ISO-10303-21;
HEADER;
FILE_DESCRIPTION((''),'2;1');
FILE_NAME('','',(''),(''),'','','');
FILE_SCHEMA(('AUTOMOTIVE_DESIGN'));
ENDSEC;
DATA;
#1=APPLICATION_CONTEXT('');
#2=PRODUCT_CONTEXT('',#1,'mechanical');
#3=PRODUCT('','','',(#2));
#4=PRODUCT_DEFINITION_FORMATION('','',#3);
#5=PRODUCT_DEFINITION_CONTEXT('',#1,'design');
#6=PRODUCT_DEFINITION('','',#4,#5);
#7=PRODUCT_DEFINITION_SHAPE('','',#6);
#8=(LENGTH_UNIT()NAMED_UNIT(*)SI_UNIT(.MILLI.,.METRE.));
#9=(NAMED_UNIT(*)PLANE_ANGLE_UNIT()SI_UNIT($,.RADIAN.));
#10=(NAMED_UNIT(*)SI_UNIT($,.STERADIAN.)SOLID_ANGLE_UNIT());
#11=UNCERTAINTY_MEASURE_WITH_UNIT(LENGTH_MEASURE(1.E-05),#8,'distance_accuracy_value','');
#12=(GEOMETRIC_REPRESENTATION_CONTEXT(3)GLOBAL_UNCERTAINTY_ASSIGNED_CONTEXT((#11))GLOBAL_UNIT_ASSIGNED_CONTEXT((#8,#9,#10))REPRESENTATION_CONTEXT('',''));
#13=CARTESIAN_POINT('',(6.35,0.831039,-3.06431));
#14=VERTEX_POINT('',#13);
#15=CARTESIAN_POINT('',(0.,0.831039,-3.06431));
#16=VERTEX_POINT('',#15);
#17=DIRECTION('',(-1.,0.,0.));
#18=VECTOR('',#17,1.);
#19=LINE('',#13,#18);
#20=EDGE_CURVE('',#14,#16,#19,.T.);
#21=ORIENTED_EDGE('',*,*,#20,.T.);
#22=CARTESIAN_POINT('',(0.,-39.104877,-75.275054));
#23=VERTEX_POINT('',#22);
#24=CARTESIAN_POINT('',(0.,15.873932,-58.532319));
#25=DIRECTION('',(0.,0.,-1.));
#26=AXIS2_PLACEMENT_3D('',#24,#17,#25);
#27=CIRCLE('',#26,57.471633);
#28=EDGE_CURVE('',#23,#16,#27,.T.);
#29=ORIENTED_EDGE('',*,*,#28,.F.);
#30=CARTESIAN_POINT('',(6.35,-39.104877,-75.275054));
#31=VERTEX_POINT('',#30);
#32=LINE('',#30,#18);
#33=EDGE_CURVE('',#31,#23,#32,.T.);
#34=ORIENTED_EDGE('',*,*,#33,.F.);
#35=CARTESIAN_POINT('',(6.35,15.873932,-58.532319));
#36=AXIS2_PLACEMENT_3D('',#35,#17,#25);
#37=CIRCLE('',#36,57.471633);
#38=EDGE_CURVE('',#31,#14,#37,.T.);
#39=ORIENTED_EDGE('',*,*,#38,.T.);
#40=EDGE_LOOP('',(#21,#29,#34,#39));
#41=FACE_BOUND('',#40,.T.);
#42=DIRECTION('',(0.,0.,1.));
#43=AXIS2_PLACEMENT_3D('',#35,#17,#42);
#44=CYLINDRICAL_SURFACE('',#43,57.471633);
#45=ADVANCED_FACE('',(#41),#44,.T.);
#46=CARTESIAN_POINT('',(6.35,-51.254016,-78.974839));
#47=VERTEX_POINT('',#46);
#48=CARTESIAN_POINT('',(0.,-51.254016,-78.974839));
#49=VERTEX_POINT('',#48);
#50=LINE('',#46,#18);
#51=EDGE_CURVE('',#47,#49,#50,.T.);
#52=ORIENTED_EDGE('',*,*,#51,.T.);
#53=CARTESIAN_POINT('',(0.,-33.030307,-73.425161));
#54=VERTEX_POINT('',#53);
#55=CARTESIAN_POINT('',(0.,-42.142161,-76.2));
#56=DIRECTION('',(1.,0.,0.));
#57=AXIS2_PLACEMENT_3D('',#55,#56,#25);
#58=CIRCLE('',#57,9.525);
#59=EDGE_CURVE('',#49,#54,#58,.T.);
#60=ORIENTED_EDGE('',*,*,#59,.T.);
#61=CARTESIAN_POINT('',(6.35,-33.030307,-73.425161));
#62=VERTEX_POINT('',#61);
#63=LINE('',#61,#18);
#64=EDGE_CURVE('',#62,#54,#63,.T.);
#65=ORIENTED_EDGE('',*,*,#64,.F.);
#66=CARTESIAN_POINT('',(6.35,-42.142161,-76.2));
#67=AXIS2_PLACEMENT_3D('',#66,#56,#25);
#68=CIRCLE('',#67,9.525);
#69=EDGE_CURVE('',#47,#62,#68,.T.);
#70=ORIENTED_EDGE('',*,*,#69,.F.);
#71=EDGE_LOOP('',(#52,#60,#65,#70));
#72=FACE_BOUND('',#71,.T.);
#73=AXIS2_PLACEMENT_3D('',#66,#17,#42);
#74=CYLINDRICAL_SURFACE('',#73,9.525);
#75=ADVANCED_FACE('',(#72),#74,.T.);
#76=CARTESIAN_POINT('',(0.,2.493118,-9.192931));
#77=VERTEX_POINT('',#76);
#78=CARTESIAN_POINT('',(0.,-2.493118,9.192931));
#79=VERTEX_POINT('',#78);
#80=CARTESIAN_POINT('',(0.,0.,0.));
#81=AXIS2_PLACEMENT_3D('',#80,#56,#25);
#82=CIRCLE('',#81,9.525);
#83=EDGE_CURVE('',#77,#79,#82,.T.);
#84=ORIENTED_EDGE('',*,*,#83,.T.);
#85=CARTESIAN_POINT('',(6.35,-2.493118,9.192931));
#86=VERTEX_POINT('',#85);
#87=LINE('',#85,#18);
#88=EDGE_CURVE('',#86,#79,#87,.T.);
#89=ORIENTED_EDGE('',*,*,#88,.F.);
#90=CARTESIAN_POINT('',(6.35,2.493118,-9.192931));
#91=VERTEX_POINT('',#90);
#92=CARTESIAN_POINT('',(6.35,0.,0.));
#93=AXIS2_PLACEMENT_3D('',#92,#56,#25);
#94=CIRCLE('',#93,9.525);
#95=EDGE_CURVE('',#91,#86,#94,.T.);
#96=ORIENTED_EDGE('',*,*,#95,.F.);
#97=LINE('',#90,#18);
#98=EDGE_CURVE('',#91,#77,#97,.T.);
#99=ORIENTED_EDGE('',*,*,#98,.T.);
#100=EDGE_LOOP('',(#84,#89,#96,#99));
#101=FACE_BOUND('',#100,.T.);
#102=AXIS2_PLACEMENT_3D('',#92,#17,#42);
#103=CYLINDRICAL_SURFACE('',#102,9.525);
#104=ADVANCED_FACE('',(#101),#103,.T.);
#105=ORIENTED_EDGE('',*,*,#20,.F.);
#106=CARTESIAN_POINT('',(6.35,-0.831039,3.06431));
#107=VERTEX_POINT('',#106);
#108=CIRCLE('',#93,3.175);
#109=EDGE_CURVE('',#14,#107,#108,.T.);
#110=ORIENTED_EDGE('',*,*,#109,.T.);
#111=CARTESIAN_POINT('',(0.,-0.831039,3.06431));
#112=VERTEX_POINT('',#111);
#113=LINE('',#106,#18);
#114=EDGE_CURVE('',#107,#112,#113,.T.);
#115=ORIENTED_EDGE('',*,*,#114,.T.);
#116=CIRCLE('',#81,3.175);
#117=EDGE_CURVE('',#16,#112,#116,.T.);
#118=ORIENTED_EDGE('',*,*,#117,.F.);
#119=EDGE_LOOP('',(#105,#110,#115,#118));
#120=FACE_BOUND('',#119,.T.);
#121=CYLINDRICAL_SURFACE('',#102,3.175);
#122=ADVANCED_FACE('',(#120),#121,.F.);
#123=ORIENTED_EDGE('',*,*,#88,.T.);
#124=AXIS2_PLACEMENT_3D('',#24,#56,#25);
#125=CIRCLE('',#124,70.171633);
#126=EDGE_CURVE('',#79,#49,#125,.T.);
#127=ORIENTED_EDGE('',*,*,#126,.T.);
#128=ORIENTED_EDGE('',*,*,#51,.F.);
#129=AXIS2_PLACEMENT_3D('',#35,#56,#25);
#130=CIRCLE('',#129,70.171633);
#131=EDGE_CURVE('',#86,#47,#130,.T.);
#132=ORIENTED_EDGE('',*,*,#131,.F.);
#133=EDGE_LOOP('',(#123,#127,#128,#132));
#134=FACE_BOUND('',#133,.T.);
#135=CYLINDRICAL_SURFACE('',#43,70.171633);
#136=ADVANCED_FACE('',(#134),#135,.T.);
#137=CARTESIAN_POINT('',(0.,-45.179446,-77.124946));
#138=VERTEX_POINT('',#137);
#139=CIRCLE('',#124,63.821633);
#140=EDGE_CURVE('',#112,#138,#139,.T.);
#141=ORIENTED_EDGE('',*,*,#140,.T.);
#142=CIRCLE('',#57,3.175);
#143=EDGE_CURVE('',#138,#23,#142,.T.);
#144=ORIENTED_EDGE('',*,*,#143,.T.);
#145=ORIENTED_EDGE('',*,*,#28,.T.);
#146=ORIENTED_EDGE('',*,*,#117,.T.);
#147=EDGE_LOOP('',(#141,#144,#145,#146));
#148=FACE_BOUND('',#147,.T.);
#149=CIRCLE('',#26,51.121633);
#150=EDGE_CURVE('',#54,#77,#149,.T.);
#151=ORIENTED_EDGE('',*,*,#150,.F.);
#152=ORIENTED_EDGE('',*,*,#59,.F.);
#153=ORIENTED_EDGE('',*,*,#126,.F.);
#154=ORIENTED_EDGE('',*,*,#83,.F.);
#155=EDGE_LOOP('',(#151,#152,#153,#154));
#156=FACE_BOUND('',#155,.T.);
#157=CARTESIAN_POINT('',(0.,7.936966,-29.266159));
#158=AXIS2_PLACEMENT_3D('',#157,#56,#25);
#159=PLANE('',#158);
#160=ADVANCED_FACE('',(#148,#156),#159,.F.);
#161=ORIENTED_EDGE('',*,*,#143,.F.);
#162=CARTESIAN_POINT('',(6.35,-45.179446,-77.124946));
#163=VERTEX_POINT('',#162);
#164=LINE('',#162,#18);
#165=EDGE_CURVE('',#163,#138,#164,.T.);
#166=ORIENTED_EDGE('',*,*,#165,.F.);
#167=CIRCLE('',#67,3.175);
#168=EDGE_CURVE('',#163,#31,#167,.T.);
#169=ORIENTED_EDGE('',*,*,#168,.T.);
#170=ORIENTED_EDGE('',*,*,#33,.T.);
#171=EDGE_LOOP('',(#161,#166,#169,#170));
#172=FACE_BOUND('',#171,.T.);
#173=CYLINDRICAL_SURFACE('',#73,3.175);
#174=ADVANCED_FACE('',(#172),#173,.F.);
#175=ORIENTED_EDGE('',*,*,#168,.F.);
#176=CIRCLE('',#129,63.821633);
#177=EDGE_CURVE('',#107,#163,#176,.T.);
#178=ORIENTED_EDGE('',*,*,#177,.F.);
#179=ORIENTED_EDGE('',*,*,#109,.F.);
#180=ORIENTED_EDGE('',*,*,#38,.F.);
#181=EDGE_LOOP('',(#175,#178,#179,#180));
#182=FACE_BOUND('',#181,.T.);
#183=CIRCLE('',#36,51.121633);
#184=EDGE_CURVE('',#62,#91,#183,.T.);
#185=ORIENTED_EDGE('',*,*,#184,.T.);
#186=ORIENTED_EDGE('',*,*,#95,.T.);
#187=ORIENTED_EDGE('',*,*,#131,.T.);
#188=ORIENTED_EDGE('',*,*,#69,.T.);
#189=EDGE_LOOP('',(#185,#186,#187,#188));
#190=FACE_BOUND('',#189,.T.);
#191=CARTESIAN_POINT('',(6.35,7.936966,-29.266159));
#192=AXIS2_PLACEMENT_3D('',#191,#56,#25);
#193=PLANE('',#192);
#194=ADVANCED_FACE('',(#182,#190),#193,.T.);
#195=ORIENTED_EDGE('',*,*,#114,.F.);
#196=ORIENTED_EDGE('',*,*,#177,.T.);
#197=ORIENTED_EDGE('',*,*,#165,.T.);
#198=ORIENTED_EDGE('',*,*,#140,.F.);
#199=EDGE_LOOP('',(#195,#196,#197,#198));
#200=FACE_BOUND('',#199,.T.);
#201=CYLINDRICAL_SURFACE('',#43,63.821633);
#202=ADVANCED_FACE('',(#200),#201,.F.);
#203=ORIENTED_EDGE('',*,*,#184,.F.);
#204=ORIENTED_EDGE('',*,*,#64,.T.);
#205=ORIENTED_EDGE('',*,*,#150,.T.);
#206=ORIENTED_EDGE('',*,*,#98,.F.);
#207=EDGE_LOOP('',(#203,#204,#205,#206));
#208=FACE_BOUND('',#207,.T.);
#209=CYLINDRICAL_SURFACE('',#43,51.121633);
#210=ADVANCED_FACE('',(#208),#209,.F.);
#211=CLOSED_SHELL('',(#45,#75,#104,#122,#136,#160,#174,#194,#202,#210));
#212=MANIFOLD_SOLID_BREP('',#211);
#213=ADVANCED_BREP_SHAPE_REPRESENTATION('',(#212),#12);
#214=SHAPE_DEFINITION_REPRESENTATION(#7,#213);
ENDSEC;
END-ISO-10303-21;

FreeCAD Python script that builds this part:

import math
import FreeCAD as App
import Part
import Sketcher
from FreeCAD import Vector
Q = App.Units.Quantity

doc = App.newDocument("Part")
body = doc.addObject("PartDesign::Body", "Body")

# Sketch on YZ plane
sketch1 = doc.addObject("Sketcher::SketchObject", "Sketch")
body.addObject(sketch1)
sketch1.AttachmentSupport = (doc.YZ_Plane, [""])
sketch1.MapMode = "FlatFace"
sketch1.addGeometry(Part.ArcOfCircle(Part.Circle(Vector(15.9, -58.5, 0), Vector(0, 0, 1), 70.2), math.radians(105), math.radians(197)), False)
sketch1.addGeometry(Part.ArcOfCircle(Part.Circle(Vector(-42.1, -76.2, 0), Vector(0, 0, 1), 9.5), math.radians(-163), math.radians(17)), False)
sketch1.addGeometry(Part.ArcOfCircle(Part.Circle(Vector(15.9, -58.5, 0), Vector(0, 0, 1), 51.1), math.radians(105), math.radians(197)), False)
sketch1.addGeometry(Part.ArcOfCircle(Part.Circle(Vector(0, 0, 0), Vector(0, 0, 1), 9.5), math.radians(-75), math.radians(105)), False)
sketch1.addGeometry(Part.ArcOfCircle(Part.Circle(Vector(15.9, -58.5, 0), Vector(0, 0, 1), 63.8), math.radians(105), math.radians(197)), False)
sketch1.addGeometry(Part.ArcOfCircle(Part.Circle(Vector(0, 0, 0), Vector(0, 0, 1), 3.2), math.radians(-75), math.radians(105)), False)
sketch1.addGeometry(Part.ArcOfCircle(Part.Circle(Vector(15.9, -58.5, 0), Vector(0, 0, 1), 57.5), math.radians(105), math.radians(197)), False)
sketch1.addGeometry(Part.ArcOfCircle(Part.Circle(Vector(-42.1, -76.2, 0), Vector(0, 0, 1), 3.2), math.radians(-163), math.radians(17)), False)
sketch1.addConstraint(Sketcher.Constraint("Tangent", 0, 2, 1, 1))
sketch1.addConstraint(Sketcher.Constraint("Tangent", 1, 2, 2, 2))
sketch1.addConstraint(Sketcher.Constraint("Tangent", 2, 1, 3, 1))
sketch1.addConstraint(Sketcher.Constraint("Tangent", 3, 2, 0, 1))
sketch1.addConstraint(Sketcher.Constraint("Tangent", 4, 1, 5, 2))
sketch1.addConstraint(Sketcher.Constraint("Tangent", 5, 1, 6, 1))
sketch1.addConstraint(Sketcher.Constraint("Tangent", 6, 2, 7, 2))
sketch1.addConstraint(Sketcher.Constraint("Tangent", 7, 1, 4, 2))
sketch1.addConstraint(Sketcher.Constraint("Coincident", 3, 3, -1, 1))
sketch1.addConstraint(Sketcher.Constraint("Coincident", 5, 3, -1, 1))
sketch1.addConstraint(Sketcher.Constraint("Coincident", 2, 3, 0, 3))
sketch1.addConstraint(Sketcher.Constraint("Coincident", 4, 3, 0, 3))
sketch1.addConstraint(Sketcher.Constraint("Coincident", 6, 3, 0, 3))
sketch1.addConstraint(Sketcher.Constraint("DistanceY", 1, 3, -1, 1, Q("3 in")))
sketch1.addConstraint(Sketcher.Constraint("DistanceY", 7, 3, -1, 1, Q("3 in")))
sketch1.addConstraint(Sketcher.Constraint("Radius", 1, Q("0.375 in")))
sketch1.addConstraint(Sketcher.Constraint("Radius", 5, Q("0.125 in")))
sketch1.addConstraint(Sketcher.Constraint("Radius", 0, Q("70.171633 mm")))
sketch1.addConstraint(Sketcher.Constraint("DistanceX", -1, 1, 0, 3, Q("15.873932 mm")))
pad1 = doc.addObject("PartDesign::Pad", "Pad")
body.addObject(pad1)
pad1.Profile = sketch1
pad1.Length = Q("0.25 in")

doc.recompute()
